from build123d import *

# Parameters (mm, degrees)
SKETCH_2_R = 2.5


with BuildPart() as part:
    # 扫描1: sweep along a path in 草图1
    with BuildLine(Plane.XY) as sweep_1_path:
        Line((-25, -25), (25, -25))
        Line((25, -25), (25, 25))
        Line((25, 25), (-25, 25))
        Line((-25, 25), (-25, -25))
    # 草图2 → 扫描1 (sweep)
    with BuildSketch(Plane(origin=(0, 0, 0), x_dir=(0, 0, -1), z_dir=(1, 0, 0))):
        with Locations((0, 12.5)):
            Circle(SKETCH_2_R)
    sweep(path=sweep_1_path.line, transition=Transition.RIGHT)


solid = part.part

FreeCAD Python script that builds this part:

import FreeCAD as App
import Part
import Sketcher
from FreeCAD import Vector

doc = App.newDocument("Part")
body = doc.addObject("PartDesign::Body", "Body")

sketch1 = body.newObject("Sketcher::SketchObject", "Sketch")
sketch1.AttachmentSupport = (doc.getObject("YZ_Plane"), [""])
sketch1.MapMode = "FlatFace"
sketch1.addGeometry(Part.Circle(Vector(12.5, 0, 0), Vector(0, 0, 1), 2.5), False)
sketch1.addConstraint([
    Sketcher.Constraint("PointOnObject", 0, 3, -1),
    Sketcher.Constraint("Diameter", 0, 5.0),
    Sketcher.Constraint("DistanceX", -1, 1, 0, 3, 12.5),
])

sketch2 = body.newObject("Sketcher::SketchObject", "Sketch001")
sketch2.AttachmentSupport = (doc.getObject("XY_Plane"), [""])
sketch2.MapMode = "FlatFace"
sketch2.addGeometry([
    Part.LineSegment(Vector(-25, -25, 0), Vector(25, -25, 0)),
    Part.LineSegment(Vector(25, -25, 0), Vector(25, 25, 0)),
    Part.LineSegment(Vector(25, 25, 0), Vector(-25, 25, 0)),
    Part.LineSegment(Vector(-25, 25, 0), Vector(-25, -25, 0)),
], False)
sketch2.addConstraint([
    Sketcher.Constraint("Coincident", 0, 2, 1, 1),
    Sketcher.Constraint("Coincident", 1, 2, 2, 1),
    Sketcher.Constraint("Coincident", 2, 2, 3, 1),
    Sketcher.Constraint("Coincident", 3, 2, 0, 1),
    Sketcher.Constraint("Horizontal", 0),
    Sketcher.Constraint("Vertical", 1),
    Sketcher.Constraint("Horizontal", 2),
    Sketcher.Constraint("Vertical", 3),
    Sketcher.Constraint("Symmetric", 0, 2, 2, 2, -1, 1),
    Sketcher.Constraint("Equal", 2, 1),
    Sketcher.Constraint("DistanceX", 0, 1, 0, 2, 50.0),
])
doc.recompute()

additivepipe = body.newObject("PartDesign::AdditivePipe", "AdditivePipe")
additivepipe.Profile = sketch1
additivepipe.Spine = (sketch2, ["Edge1", "Edge2", "Edge3", "Edge4"])
additivepipe.Transition = "Right corner"

doc.recompute()
